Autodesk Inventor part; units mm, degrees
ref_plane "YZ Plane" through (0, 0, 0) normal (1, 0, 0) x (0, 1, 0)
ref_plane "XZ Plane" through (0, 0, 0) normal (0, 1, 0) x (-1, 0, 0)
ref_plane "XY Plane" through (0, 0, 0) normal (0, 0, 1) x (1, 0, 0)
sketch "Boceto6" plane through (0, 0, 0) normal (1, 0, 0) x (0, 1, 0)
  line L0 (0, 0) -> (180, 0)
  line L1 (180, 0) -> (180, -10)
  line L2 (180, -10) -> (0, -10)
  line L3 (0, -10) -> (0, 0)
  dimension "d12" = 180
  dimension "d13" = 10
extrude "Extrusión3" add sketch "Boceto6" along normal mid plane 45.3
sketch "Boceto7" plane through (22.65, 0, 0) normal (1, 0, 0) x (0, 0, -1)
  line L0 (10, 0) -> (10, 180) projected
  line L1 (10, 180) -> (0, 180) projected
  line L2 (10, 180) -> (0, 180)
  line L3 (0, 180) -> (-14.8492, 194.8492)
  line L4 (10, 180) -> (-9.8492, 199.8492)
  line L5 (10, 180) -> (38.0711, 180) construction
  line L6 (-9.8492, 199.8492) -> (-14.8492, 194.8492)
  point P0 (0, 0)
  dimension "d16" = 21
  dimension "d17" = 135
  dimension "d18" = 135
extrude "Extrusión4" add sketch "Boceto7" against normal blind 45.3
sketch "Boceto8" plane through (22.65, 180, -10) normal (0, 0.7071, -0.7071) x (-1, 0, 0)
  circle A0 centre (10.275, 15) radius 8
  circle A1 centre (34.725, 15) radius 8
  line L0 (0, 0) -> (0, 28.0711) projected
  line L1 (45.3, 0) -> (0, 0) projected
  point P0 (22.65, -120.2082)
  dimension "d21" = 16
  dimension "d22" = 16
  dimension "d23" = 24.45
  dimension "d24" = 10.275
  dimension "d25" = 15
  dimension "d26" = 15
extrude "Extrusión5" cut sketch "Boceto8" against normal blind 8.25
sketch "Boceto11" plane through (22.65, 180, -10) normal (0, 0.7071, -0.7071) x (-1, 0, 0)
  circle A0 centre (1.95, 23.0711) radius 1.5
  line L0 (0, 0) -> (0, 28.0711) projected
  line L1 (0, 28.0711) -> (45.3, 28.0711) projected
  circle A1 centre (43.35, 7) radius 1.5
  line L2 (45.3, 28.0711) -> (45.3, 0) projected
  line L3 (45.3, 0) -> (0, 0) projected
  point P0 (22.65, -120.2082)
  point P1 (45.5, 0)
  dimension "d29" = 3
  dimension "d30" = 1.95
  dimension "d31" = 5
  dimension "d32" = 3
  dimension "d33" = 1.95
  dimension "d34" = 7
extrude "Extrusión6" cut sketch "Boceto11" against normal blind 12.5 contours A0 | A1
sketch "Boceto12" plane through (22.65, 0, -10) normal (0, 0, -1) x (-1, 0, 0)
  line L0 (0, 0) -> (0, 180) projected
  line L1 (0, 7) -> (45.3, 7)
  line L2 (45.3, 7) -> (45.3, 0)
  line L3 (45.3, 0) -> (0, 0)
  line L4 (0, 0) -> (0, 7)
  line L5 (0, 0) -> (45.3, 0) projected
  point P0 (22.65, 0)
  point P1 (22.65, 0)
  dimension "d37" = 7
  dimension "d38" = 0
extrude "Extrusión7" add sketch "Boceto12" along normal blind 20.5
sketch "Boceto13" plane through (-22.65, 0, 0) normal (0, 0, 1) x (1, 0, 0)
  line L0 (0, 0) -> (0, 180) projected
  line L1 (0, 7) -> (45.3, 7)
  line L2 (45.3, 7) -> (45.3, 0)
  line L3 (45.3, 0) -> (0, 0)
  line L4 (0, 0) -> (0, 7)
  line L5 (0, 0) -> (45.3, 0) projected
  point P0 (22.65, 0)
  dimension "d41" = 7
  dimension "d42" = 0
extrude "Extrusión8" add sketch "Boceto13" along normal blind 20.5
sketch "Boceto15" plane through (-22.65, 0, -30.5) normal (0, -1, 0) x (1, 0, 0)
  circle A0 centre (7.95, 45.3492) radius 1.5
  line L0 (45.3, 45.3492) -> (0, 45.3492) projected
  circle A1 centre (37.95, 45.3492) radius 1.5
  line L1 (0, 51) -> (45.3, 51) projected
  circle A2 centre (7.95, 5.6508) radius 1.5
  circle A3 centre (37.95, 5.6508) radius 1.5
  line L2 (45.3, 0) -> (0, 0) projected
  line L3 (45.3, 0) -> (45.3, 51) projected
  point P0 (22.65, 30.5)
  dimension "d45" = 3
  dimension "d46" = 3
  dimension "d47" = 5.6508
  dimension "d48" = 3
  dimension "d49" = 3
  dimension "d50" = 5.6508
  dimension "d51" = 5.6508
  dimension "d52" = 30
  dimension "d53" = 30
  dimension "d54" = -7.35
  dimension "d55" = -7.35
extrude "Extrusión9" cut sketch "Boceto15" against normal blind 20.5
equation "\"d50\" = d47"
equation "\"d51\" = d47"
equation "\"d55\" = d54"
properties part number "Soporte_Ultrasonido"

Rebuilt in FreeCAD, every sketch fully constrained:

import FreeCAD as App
import Part
import Sketcher
Q = App.Units.Quantity


def add_polygon(sketch, points):
    """Adds a closed chain of lines whose ends are joined by coincident constraints."""
    first, n = sketch.GeometryCount, len(points)
    for a, b in zip(points, points[1:] + points[:1]):
        sketch.addGeometry(Part.LineSegment(App.Vector(*a, 0), App.Vector(*b, 0)), False)
    for i in range(n):
        sketch.addConstraint(Sketcher.Constraint("Coincident", first + i, 2, first + (i + 1) % n, 1))

doc = App.newDocument("Part")
body = doc.addObject("PartDesign::Body", "Body")

sketch1 = doc.addObject("Sketcher::SketchObject", "Sketch")
body.addObject(sketch1)
sketch1.AttachmentSupport = (doc.YZ_Plane, [""])
sketch1.MapMode = "FlatFace"
add_polygon(sketch1, [(180, 0), (0, 0), (0, -10), (180, -10)])
sketch1.addConstraint([
    Sketcher.Constraint("Horizontal", 0),
    Sketcher.Constraint("Vertical", 1),
    Sketcher.Constraint("Horizontal", 2),
    Sketcher.Constraint("Vertical", 3),
    Sketcher.Constraint("Coincident", 0, 2, -1, 1),
    Sketcher.Constraint("DistanceX", 0, 2, 0, 1, 180.0),
    Sketcher.Constraint("DistanceY", 1, 2, 1, 1, 10.0),
])
pad1 = doc.addObject("PartDesign::Pad", "Pad")
body.addObject(pad1)
pad1.Profile = sketch1
pad1.Length = 45.3
pad1.Midplane = True

sketch2 = doc.addObject("Sketcher::SketchObject", "Sketch001")
body.addObject(sketch2)
sketch2.AttachmentSupport = (doc.YZ_Plane, [""])
sketch2.MapMode = "FlatFace"
sketch2.AttachmentOffset = App.Placement(App.Vector(0, 0, 22.65), App.Rotation())
add_polygon(sketch2, [(180, 0), (180, -10), (200, 10), (195, 15)])
sketch2.addConstraint([
    Sketcher.Constraint("Vertical", 0),
    Sketcher.Constraint("PointOnObject", 3, 2, -1),
    Sketcher.Constraint("Perpendicular", 1, 2),
    Sketcher.Constraint("Perpendicular", 2, 3),
    Sketcher.Constraint("Angle", 2, Q("135 deg")),
    Sketcher.Constraint("Distance", 3, 21.0),
    Sketcher.Constraint("DistanceY", 0, 2, 0, 1, 10.0),
    Sketcher.Constraint("DistanceX", -1, 1, 0, 2, 180.0),
])
pad2 = doc.addObject("PartDesign::Pad", "Pad001")
body.addObject(pad2)
pad2.Profile = sketch2
pad2.Length = 45.3
pad2.Reversed = True

sketch3 = doc.addObject("Sketcher::SketchObject", "Sketch002")
body.addObject(sketch3)
sketch3.Placement = App.Placement(App.Vector(22.65, 180, -10), App.Rotation(App.Vector(-1, 0, 0), App.Vector(0, 0.707106781, 0.707106781), App.Vector(0, 0.707106781, -0.707106781), "ZXY"))
sketch3.addGeometry([
    Part.Circle(App.Vector(10, 15, 0), App.Vector(0, 0, 1), 8),
    Part.Circle(App.Vector(35, 15, 0), App.Vector(0, 0, 1), 8),
], False)
sketch3.addConstraint([
    Sketcher.Constraint("Equal", 0, 1),
    Sketcher.Constraint("Horizontal", 0, 3, 1, 3),
    Sketcher.Constraint("Diameter", 0, 16.0),
    Sketcher.Constraint("DistanceY", -1, 1, 0, 3, 15.0),
    Sketcher.Constraint("DistanceX", 0, 3, 1, 3, 24.45),
    Sketcher.Constraint("DistanceX", -1, 1, 0, 3, 10.275),
])
pocket1 = doc.addObject("PartDesign::Pocket", "Pocket")
body.addObject(pocket1)
pocket1.Profile = sketch3
pocket1.Length = 8.25

sketch4 = doc.addObject("Sketcher::SketchObject", "Sketch003")
body.addObject(sketch4)
sketch4.Placement = App.Placement(App.Vector(22.65, 180, -10), App.Rotation(App.Vector(-1, 0, 0), App.Vector(0, 0.707106781, 0.707106781), App.Vector(0, 0.707106781, -0.707106781), "ZXY"))
sketch4.addGeometry([
    Part.Circle(App.Vector(1.9, 23.1, 0), App.Vector(0, 0, 1), 1.5),
    Part.Circle(App.Vector(43.4, 7, 0), App.Vector(0, 0, 1), 1.5),
], False)
sketch4.addConstraint([
    Sketcher.Constraint("Equal", 0, 1),
    Sketcher.Constraint("Diameter", 0, 3.0),
    Sketcher.Constraint("DistanceY", -1, 1, 1, 3, 7.0),
    Sketcher.Constraint("DistanceX", -1, 1, 0, 3, 1.95),
    Sketcher.Constraint("DistanceX", 0, 3, 1, 3, 41.4),
    Sketcher.Constraint("DistanceY", -1, 1, 0, 3, 23.071),
])
pocket2 = doc.addObject("PartDesign::Pocket", "Pocket001")
body.addObject(pocket2)
pocket2.Profile = sketch4
pocket2.Length = 12.5

sketch5 = doc.addObject("Sketcher::SketchObject", "Sketch004")
body.addObject(sketch5)
sketch5.AttachmentSupport = (doc.XY_Plane, [""])
sketch5.MapMode = "FlatFace"
sketch5.AttachmentOffset = App.Placement(App.Vector(0, 0, -10), App.Rotation())
add_polygon(sketch5, [(23, 7), (23, 0), (-23, 0), (-23, 7)])
sketch5.addConstraint([
    Sketcher.Constraint("Vertical", 0),
    Sketcher.Constraint("Horizontal", 1),
    Sketcher.Constraint("Vertical", 2),
    Sketcher.Constraint("Horizontal", 3),
    Sketcher.Constraint("Symmetric", 0, 2, 1, 2, -1, 1),
    Sketcher.Constraint("DistanceY", 0, 2, 0, 1, 7.0),
    Sketcher.Constraint("DistanceX", 1, 2, 1, 1, 45.3),
])
pad3 = doc.addObject("PartDesign::Pad", "Pad002")
body.addObject(pad3)
pad3.Profile = sketch5
pad3.Length = 20.5
pad3.Reversed = True

sketch6 = doc.addObject("Sketcher::SketchObject", "Sketch005")
body.addObject(sketch6)
sketch6.AttachmentSupport = (doc.XY_Plane, [""])
sketch6.MapMode = "FlatFace"
add_polygon(sketch6, [(-23, 7), (-23, 0), (23, 0), (23, 7)])
sketch6.addConstraint([
    Sketcher.Constraint("Vertical", 0),
    Sketcher.Constraint("Horizontal", 1),
    Sketcher.Constraint("Vertical", 2),
    Sketcher.Constraint("Horizontal", 3),
    Sketcher.Constraint("Symmetric", 0, 2, 1, 2, -1, 1),
    Sketcher.Constraint("DistanceY", 0, 2, 0, 1, 7.0),
    Sketcher.Constraint("DistanceX", 1, 1, 1, 2, 45.3),
])
pad4 = doc.addObject("PartDesign::Pad", "Pad003")
body.addObject(pad4)
pad4.Profile = sketch6
pad4.Length = 20.5

sketch7 = doc.addObject("Sketcher::SketchObject", "Sketch006")
body.addObject(sketch7)
sketch7.AttachmentSupport = (doc.XZ_Plane, [""])
sketch7.MapMode = "FlatFace"
sketch7.addGeometry([
    Part.Circle(App.Vector(-14.7, 14.8, 0), App.Vector(0, 0, 1), 1.5),
    Part.Circle(App.Vector(15.3, 14.8, 0), App.Vector(0, 0, 1), 1.5),
    Part.Circle(App.Vector(-14.7, -24.8, 0), App.Vector(0, 0, 1), 1.5),
    Part.Circle(App.Vector(15.3, -24.8, 0), App.Vector(0, 0, 1), 1.5),
], False)
sketch7.addConstraint([
    Sketcher.Constraint("Equal", 0, 1),
    Sketcher.Constraint("Equal", 1, 2),
    Sketcher.Constraint("Equal", 2, 3),
    Sketcher.Constraint("Horizontal", 0, 3, 1, 3),
    Sketcher.Constraint("Horizontal", 2, 3, 3, 3),
    Sketcher.Constraint("Vertical", 0, 3, 2, 3),
    Sketcher.Constraint("Vertical", 1, 3, 3, 3),
    Sketcher.Constraint("Diameter", 0, 3.0),
    Sketcher.Constraint("DistanceX", 0, 3, 1, 3, 30.0),
    Sketcher.Constraint("DistanceX", 0, 3, -1, 1, 14.7),
    Sketcher.Constraint("DistanceY", -1, 1, 0, 3, 14.8492),
    Sketcher.Constraint("DistanceY", 2, 3, -1, 1, 24.8492),
])
pocket3 = doc.addObject("PartDesign::Pocket", "Pocket002")
body.addObject(pocket3)
pocket3.Profile = sketch7
pocket3.Length = 20.5

doc.recompute()
